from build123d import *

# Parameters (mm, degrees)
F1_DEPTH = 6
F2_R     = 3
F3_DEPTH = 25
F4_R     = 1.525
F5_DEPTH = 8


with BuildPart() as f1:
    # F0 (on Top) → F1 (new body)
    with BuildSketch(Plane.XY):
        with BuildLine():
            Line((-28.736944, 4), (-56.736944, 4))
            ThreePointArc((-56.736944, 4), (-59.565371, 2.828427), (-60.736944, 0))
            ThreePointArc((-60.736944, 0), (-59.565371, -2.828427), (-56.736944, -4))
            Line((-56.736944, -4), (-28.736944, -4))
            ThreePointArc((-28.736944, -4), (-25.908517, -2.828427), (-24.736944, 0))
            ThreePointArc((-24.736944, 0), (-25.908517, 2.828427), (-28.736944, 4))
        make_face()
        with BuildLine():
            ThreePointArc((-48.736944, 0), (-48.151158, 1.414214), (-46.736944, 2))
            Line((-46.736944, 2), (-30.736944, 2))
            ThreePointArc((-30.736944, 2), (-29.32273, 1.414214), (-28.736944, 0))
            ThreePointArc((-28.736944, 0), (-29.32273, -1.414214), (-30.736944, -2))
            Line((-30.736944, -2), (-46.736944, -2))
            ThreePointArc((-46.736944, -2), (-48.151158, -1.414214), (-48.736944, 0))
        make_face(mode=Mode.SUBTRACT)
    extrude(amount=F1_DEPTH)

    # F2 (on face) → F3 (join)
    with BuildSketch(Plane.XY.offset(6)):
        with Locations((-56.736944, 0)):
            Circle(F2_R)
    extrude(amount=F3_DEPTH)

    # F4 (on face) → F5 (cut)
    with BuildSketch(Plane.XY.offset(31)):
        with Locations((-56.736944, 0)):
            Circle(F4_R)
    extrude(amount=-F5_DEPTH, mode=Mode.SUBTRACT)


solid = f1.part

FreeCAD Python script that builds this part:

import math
import FreeCAD as App
import Part
import Sketcher

V = App.Vector

doc = App.newDocument("Part")
body = doc.addObject("PartDesign::Body", "Body")

sketch1 = body.newObject("Sketcher::SketchObject", "Sketch")
sketch1.AttachmentSupport = (doc.getObject("XY_Plane"), [""])
sketch1.MapMode = "FlatFace"
sketch1.addGeometry([
    Part.LineSegment(V(-28.736944, 4, 0), V(-56.736944, 4, 0)),
    Part.ArcOfCircle(Part.Circle(V(-56.736944, 0, 0), V(0, 0, 1), 4), math.radians(90.000006), math.radians(179.999994)),
    Part.ArcOfCircle(Part.Circle(V(-56.736944, 0, 0), V(0, 0, 1), 4), math.radians(-179.999994), math.radians(-90.000006)),
    Part.LineSegment(V(-56.736944, -4, 0), V(-28.736944, -4, 0)),
    Part.ArcOfCircle(Part.Circle(V(-28.736944, 0, 0), V(0, 0, 1), 4), math.radians(-89.999994), math.radians(-0.000006)),
    Part.ArcOfCircle(Part.Circle(V(-28.736944, 0, 0), V(0, 0, 1), 4), math.radians(0.000006), math.radians(89.999994)),
    Part.ArcOfCircle(Part.Circle(V(-46.736945, -0.000001, 0), V(0, 0, 1), 1.999999), math.radians(179.999957), math.radians(270.000043)),
    Part.ArcOfCircle(Part.Circle(V(-46.736945, 0.000001, 0), V(0, 0, 1), 1.999999), math.radians(89.999957), math.radians(180.000043)),
    Part.LineSegment(V(-46.736944, 2, 0), V(-30.736944, 2, 0)),
    Part.ArcOfCircle(Part.Circle(V(-30.736943, 0.000001, 0), V(0, 0, 1), 1.999999), math.radians(-0.000043), math.radians(90.000043)),
    Part.ArcOfCircle(Part.Circle(V(-30.736943, -0.000001, 0), V(0, 0, 1), 1.999999), math.radians(-90.000043), math.radians(0.000043)),
    Part.LineSegment(V(-30.736944, -2, 0), V(-46.736944, -2, 0)),
], False)
sketch1.addConstraint([
    Sketcher.Constraint("Tangent", 0, 2, 1, 1),
    Sketcher.Constraint("Tangent", 1, 2, 2, 1),
    Sketcher.Constraint("Tangent", 2, 2, 3, 1),
    Sketcher.Constraint("Tangent", 3, 2, 4, 1),
    Sketcher.Constraint("Tangent", 4, 2, 5, 1),
    Sketcher.Constraint("Tangent", 5, 2, 0, 1),
    Sketcher.Constraint("Tangent", 6, 1, 7, 2),
    Sketcher.Constraint("Tangent", 7, 1, 8, 1),
    Sketcher.Constraint("Tangent", 8, 2, 9, 2),
    Sketcher.Constraint("Tangent", 9, 1, 10, 2),
    Sketcher.Constraint("Tangent", 10, 1, 11, 1),
    Sketcher.Constraint("Tangent", 11, 2, 6, 2),
    Sketcher.Constraint("Horizontal", 0),
    Sketcher.Constraint("Horizontal", 3),
    Sketcher.Constraint("Horizontal", 8),
    Sketcher.Constraint("Horizontal", 11),
    Sketcher.Constraint("Coincident", 9, 1, 4, 3),
    Sketcher.Constraint("Equal", 1, 2),
    Sketcher.Constraint("Equal", 2, 4),
    Sketcher.Constraint("Equal", 6, 7),
    Sketcher.Constraint("Equal", 7, 9),
    Sketcher.Constraint("PointOnObject", 1, 3, -1),
    Sketcher.Constraint("PointOnObject", 6, 3, -1),
    Sketcher.Constraint("PointOnObject", 1, 2, -1),
    Sketcher.Constraint("PointOnObject", 4, 2, -1),
    Sketcher.Constraint("PointOnObject", 6, 1, -1),
    Sketcher.Constraint("Radius", 1, 4.0),
    Sketcher.Constraint("Radius", 6, 1.999999),
    Sketcher.Constraint("DistanceX", 0, 2, 0, 1, 28.0),
    Sketcher.Constraint("DistanceX", 8, 1, 8, 2, 16.0),
    Sketcher.Constraint("DistanceX", 1, 3, -1, 1, 56.736944),
])
pad1 = body.newObject("PartDesign::Pad", "Pad")
pad1.Profile = sketch1
pad1.Length = 6

sketch2 = body.newObject("Sketcher::SketchObject", "Sketch001")
sketch2.AttachmentSupport = (doc.getObject("XY_Plane"), [""])
sketch2.MapMode = "FlatFace"
sketch2.AttachmentOffset = App.Placement(V(0, 0, 6), App.Rotation())
sketch2.addGeometry(Part.Circle(V(-56.736944, 0, 0), V(0, 0, 1), 3), False)
sketch2.addConstraint([
    Sketcher.Constraint("PointOnObject", 0, 3, -1),
    Sketcher.Constraint("Diameter", 0, 6.0),
    Sketcher.Constraint("DistanceX", 0, 3, -1, 1, 56.736944),
])
pad2 = body.newObject("PartDesign::Pad", "Pad001")
pad2.Profile = sketch2
pad2.Length = 25

sketch3 = body.newObject("Sketcher::SketchObject", "Sketch002")
sketch3.AttachmentSupport = (doc.getObject("XY_Plane"), [""])
sketch3.MapMode = "FlatFace"
sketch3.AttachmentOffset = App.Placement(V(0, 0, 31), App.Rotation())
sketch3.addGeometry(Part.Circle(V(-56.736944, 0, 0), V(0, 0, 1), 1.525), False)
sketch3.addConstraint([
    Sketcher.Constraint("PointOnObject", 0, 3, -1),
    Sketcher.Constraint("Diameter", 0, 3.05),
    Sketcher.Constraint("DistanceX", 0, 3, -1, 1, 56.736944),
])
pocket1 = body.newObject("PartDesign::Pocket", "Pocket")
pocket1.Profile = sketch3
pocket1.Length = 8

doc.recompute()
